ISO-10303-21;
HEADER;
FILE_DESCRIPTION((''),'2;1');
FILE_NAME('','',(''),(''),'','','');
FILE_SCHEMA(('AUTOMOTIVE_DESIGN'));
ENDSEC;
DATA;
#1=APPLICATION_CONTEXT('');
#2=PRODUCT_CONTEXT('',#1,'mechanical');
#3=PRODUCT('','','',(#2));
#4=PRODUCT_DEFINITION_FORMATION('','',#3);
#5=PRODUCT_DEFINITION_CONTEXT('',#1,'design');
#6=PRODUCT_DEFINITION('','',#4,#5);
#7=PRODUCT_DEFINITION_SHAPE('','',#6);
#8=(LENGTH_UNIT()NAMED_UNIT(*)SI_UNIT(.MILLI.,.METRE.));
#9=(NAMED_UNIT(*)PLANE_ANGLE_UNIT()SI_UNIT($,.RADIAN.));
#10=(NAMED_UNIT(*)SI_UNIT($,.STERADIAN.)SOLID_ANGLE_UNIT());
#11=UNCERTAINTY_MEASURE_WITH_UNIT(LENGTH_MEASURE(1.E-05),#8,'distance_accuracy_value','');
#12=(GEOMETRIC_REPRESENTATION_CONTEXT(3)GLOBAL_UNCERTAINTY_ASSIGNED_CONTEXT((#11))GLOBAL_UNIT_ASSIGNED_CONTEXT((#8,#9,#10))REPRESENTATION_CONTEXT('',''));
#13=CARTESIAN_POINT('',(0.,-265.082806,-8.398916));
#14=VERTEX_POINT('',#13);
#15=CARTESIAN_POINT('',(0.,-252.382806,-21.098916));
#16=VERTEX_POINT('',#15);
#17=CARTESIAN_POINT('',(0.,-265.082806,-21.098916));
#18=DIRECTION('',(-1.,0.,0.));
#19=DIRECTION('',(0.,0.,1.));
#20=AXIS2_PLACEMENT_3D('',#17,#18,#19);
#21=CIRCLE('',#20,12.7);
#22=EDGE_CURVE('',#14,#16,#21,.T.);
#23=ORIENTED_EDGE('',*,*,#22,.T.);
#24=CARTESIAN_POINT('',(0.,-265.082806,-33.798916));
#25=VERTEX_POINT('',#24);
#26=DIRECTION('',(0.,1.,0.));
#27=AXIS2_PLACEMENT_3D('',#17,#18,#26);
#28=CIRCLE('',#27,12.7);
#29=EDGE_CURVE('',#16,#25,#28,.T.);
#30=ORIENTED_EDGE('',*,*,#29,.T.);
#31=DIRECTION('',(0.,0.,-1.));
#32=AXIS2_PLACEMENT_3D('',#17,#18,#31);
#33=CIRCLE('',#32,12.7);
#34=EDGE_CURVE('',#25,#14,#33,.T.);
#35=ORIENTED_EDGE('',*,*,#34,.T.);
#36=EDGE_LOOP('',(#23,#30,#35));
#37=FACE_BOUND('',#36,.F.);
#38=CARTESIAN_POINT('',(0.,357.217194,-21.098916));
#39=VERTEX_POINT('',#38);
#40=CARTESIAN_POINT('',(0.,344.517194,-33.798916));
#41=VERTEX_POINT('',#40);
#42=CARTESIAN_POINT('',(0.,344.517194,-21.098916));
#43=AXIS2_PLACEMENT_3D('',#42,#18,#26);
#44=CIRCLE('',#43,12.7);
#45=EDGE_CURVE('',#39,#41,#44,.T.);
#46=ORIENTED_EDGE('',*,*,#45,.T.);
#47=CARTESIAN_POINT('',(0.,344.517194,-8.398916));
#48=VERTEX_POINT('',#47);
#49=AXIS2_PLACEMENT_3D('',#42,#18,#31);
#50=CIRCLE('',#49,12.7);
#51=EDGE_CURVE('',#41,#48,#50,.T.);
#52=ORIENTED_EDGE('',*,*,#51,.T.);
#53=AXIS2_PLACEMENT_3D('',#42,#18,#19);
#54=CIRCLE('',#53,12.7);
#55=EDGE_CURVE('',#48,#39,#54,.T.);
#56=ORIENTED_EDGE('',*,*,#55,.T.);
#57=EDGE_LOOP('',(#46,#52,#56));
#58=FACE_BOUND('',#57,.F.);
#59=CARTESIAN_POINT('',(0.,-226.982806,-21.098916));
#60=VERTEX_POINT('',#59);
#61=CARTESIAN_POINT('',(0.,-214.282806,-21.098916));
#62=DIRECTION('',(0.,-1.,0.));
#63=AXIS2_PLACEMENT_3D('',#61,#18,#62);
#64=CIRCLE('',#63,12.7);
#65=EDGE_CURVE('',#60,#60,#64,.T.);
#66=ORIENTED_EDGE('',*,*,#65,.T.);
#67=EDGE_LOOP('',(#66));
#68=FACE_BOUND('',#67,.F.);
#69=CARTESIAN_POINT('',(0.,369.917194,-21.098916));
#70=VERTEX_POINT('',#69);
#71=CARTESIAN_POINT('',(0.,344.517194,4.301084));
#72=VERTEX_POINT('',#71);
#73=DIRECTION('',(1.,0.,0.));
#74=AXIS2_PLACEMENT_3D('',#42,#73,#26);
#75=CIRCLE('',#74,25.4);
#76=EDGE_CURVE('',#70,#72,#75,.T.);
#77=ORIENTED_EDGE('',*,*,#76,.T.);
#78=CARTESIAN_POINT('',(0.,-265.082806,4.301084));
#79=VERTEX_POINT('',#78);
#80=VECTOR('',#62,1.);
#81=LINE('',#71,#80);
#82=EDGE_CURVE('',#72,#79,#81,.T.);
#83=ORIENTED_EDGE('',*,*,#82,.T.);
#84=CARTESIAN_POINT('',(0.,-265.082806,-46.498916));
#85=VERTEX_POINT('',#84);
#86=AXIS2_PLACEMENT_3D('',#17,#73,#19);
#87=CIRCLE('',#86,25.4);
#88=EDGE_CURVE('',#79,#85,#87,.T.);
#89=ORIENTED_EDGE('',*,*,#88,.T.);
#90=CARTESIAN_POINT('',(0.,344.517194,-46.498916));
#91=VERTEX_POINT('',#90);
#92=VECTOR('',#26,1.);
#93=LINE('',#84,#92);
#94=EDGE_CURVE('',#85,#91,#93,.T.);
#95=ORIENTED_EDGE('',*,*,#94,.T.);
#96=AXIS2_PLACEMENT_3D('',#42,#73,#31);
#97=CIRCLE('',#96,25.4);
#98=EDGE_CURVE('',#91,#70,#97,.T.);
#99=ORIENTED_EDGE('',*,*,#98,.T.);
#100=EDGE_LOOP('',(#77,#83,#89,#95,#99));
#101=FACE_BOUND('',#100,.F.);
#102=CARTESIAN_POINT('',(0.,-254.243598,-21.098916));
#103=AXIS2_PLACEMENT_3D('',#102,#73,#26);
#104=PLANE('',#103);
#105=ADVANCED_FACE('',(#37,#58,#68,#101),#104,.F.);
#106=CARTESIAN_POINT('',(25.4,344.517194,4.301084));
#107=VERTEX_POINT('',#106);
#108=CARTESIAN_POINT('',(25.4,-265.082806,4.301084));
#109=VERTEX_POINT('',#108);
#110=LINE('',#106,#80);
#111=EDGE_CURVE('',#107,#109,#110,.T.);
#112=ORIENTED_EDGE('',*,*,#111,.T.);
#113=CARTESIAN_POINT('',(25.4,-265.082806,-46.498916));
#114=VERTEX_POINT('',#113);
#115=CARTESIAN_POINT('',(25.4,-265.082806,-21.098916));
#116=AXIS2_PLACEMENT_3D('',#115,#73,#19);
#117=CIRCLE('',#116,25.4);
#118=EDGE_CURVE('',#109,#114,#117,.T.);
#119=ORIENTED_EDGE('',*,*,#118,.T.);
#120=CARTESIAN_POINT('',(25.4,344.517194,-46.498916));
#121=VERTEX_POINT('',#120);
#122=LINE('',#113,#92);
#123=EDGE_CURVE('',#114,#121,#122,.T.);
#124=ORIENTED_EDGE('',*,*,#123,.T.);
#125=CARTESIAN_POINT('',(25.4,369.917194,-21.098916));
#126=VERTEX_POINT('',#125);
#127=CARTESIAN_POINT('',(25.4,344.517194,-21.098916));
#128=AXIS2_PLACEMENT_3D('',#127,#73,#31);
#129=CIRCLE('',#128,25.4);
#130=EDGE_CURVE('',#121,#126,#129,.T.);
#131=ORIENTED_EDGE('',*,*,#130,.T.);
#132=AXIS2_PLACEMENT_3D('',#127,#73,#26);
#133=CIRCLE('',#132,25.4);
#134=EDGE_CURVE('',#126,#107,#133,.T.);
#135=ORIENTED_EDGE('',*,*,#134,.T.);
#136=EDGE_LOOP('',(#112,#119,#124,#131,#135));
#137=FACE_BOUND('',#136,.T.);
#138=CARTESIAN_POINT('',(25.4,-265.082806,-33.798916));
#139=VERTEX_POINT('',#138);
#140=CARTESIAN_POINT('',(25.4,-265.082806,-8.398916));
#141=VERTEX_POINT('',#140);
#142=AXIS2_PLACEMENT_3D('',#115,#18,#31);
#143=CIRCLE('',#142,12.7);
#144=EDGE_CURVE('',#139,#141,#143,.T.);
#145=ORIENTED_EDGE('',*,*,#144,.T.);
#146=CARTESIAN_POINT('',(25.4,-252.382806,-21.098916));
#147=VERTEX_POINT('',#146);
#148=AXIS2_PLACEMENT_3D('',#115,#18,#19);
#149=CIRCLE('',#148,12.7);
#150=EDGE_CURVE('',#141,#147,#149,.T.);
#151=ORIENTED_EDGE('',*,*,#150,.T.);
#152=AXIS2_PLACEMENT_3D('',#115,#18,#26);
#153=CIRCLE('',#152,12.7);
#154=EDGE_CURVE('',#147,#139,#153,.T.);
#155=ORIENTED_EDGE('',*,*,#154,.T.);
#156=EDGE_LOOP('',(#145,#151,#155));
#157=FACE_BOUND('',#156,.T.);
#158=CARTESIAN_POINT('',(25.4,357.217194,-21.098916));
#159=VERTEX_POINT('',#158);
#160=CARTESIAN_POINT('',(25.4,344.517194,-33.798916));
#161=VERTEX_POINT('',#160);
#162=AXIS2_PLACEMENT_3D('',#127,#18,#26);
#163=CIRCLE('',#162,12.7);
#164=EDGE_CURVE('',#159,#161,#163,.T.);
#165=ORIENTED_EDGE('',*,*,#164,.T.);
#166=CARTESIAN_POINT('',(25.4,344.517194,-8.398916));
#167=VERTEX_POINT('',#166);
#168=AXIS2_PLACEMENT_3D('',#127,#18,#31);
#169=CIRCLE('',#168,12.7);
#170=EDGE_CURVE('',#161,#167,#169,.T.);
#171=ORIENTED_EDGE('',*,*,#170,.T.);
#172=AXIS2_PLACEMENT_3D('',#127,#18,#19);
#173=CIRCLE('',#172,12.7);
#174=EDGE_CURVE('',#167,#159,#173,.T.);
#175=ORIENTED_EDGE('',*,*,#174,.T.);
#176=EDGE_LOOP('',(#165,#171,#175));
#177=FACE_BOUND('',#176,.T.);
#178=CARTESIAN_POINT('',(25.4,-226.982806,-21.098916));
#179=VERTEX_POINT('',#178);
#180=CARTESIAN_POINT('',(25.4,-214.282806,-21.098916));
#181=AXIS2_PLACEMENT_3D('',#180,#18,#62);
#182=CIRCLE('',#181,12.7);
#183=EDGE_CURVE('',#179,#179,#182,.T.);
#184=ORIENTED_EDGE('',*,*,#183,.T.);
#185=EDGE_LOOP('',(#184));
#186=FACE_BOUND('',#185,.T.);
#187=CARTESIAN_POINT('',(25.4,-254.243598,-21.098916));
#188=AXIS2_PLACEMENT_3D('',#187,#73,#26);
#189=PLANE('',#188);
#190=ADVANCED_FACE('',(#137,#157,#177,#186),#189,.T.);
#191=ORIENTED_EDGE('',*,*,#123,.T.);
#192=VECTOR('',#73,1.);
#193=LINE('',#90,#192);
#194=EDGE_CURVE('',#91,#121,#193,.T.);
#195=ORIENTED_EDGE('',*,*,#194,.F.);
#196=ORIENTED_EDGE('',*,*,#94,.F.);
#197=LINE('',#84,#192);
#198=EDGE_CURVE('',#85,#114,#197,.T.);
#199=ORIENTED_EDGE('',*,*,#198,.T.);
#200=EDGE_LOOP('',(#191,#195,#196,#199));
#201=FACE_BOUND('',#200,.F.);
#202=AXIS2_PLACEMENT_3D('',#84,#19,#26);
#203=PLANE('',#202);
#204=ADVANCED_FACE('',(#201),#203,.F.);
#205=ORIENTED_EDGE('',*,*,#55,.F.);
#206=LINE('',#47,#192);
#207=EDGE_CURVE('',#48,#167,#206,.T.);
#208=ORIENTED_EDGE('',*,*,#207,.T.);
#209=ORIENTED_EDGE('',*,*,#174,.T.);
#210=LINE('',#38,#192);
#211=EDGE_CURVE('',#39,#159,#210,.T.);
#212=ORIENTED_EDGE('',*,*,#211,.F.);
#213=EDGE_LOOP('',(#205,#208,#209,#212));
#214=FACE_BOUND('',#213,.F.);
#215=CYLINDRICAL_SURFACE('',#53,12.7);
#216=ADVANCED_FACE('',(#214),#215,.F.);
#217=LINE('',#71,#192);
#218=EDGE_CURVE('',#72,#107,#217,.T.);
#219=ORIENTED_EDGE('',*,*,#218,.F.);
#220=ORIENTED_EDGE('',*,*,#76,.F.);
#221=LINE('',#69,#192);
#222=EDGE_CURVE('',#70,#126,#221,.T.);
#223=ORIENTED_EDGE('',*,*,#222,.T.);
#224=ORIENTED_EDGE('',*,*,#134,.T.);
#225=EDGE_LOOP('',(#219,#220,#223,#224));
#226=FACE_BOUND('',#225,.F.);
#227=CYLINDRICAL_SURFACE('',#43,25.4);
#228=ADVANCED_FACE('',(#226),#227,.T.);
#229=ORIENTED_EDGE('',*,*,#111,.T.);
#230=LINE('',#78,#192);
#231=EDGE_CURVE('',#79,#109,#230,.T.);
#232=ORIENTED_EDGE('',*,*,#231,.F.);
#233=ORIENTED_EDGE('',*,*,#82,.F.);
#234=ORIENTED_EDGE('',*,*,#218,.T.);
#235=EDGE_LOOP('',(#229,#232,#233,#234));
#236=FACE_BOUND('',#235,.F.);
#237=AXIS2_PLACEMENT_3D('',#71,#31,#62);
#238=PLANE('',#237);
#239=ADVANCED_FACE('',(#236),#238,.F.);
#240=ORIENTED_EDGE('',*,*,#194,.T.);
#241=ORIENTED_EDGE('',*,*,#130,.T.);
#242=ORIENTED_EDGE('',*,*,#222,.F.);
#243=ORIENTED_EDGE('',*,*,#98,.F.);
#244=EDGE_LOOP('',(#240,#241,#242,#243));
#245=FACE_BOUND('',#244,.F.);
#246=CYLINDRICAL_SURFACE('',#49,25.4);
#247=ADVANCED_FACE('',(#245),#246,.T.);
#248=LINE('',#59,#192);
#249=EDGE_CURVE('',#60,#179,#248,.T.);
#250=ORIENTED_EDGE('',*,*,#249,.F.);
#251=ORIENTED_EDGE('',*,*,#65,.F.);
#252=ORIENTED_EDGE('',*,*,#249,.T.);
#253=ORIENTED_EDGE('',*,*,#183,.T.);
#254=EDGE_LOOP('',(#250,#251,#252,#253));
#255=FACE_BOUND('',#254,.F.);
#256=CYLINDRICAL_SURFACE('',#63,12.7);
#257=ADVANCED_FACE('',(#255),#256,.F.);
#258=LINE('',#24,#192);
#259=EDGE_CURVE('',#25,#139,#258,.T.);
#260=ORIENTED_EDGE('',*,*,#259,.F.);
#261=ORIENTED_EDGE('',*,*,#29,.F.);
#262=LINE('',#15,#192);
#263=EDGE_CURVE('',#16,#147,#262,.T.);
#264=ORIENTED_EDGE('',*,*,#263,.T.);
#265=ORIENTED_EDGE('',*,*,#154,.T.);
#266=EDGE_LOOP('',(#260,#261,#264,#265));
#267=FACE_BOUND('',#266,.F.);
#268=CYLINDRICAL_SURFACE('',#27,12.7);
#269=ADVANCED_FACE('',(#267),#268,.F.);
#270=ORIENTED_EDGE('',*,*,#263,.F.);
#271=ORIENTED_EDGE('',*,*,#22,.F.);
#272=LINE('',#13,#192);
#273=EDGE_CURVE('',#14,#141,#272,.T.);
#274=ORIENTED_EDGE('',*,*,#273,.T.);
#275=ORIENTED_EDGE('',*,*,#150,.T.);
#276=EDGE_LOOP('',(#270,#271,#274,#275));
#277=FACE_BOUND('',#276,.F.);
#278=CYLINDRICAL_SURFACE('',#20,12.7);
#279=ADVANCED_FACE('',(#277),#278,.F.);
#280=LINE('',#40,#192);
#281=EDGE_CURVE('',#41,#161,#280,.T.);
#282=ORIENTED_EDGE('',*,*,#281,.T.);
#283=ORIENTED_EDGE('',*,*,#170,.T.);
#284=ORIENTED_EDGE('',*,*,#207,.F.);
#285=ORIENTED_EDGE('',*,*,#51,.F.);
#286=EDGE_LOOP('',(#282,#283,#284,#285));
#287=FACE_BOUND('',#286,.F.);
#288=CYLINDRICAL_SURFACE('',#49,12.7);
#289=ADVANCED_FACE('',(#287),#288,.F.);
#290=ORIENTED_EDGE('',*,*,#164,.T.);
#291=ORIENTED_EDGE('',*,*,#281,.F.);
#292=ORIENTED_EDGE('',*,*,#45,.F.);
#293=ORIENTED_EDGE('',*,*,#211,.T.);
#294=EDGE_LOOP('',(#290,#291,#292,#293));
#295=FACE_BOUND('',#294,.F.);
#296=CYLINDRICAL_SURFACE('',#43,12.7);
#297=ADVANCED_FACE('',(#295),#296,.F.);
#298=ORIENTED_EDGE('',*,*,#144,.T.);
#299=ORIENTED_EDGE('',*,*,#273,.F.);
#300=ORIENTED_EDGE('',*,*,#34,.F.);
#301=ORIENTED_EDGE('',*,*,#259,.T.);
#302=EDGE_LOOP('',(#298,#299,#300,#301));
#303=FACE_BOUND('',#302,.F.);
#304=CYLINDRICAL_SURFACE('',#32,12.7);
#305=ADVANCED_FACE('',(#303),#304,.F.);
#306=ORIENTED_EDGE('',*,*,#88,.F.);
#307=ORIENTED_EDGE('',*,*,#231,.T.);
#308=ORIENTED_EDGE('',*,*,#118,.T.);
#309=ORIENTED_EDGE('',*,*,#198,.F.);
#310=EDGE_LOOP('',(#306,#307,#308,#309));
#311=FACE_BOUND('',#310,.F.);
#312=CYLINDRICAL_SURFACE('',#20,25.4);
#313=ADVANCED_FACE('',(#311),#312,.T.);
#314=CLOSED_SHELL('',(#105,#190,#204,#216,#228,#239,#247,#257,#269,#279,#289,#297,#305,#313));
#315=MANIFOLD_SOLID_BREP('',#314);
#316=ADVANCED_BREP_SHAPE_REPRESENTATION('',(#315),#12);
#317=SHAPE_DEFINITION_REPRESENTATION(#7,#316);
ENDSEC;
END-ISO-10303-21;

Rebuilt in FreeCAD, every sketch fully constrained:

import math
import FreeCAD as App
import Part
import Sketcher
Q = App.Units.Quantity

doc = App.newDocument("Part")
body = doc.addObject("PartDesign::Body", "Body")

sketch1 = body.newObject("Sketcher::SketchObject", "Sketch")
sketch1.AttachmentSupport = (doc.getObject("YZ_Plane"), [""])
sketch1.MapMode = "FlatFace"
sketch1.addGeometry([
    Part.LineSegment(App.Vector(345, 4, 0), App.Vector(-265, 4, 0)),
    Part.ArcOfCircle(Part.Circle(App.Vector(-265, -21, 0), App.Vector(0, 0, 1), 25), math.radians(90), math.radians(270)),
    Part.LineSegment(App.Vector(-265, -46, 0), App.Vector(345, -46, 0)),
    Part.ArcOfCircle(Part.Circle(App.Vector(345, -21, 0), App.Vector(0, 0, 1), 25), math.radians(-90), math.radians(0)),
    Part.ArcOfCircle(Part.Circle(App.Vector(345, -21, 0), App.Vector(0, 0, 1), 25), math.radians(0), math.radians(90)),
    Part.ArcOfCircle(Part.Circle(App.Vector(-265, -21, 0), App.Vector(0, 0, 1), 13), math.radians(0), math.radians(90)),
    Part.ArcOfCircle(Part.Circle(App.Vector(-265, -21, 0), App.Vector(0, 0, 1), 13), math.radians(-90), math.radians(0)),
    Part.ArcOfCircle(Part.Circle(App.Vector(-265, -21, 0), App.Vector(0, 0, 1), 13), math.radians(90), math.radians(270)),
    Part.Circle(App.Vector(-214, -21, 0), App.Vector(0, 0, 1), 13),
    Part.ArcOfCircle(Part.Circle(App.Vector(345, -21, 0), App.Vector(0, 0, 1), 13), math.radians(90), math.radians(270)),
    Part.ArcOfCircle(Part.Circle(App.Vector(345, -21, 0), App.Vector(0, 0, 1), 13), math.radians(0), math.radians(90)),
    Part.ArcOfCircle(Part.Circle(App.Vector(345, -21, 0), App.Vector(0, 0, 1), 13), math.radians(-90), math.radians(0)),
], False)
sketch1.addConstraint([
    Sketcher.Constraint("Tangent", 0, 2, 1, 1),
    Sketcher.Constraint("Tangent", 1, 2, 2, 1),
    Sketcher.Constraint("Tangent", 2, 2, 3, 1),
    Sketcher.Constraint("Tangent", 3, 2, 4, 1),
    Sketcher.Constraint("Tangent", 4, 2, 0, 1),
    Sketcher.Constraint("Tangent", 5, 1, 6, 2),
    Sketcher.Constraint("Tangent", 6, 1, 7, 2),
    Sketcher.Constraint("Tangent", 7, 1, 5, 2),
    Sketcher.Constraint("Tangent", 9, 1, 10, 2),
    Sketcher.Constraint("Tangent", 10, 1, 11, 2),
    Sketcher.Constraint("Tangent", 11, 1, 9, 2),
    Sketcher.Constraint("Horizontal", 0),
    Sketcher.Constraint("Horizontal", 2),
    Sketcher.Constraint("Coincident", 5, 3, 1, 3),
    Sketcher.Constraint("Coincident", 9, 3, 3, 3),
    Sketcher.Constraint("Equal", 1, 3),
    Sketcher.Constraint("Equal", 7, 8),
    Sketcher.Constraint("Equal", 8, 9),
    Sketcher.Constraint("Horizontal", 7, 3, 8, 3),
    Sketcher.Constraint("Horizontal", 11, 3, 3, 2),
    Sketcher.Constraint("Horizontal", 3, 2, 5, 1),
    Sketcher.Constraint("Horizontal", 5, 1, 10, 1),
    Sketcher.Constraint("Vertical", 1, 2, 6, 1),
    Sketcher.Constraint("Vertical", 6, 1, 7, 1),
    Sketcher.Constraint("Vertical", 4, 2, 9, 1),
    Sketcher.Constraint("Vertical", 9, 1, 11, 1),
    Sketcher.Constraint("Diameter", 8, Q("1 in")),
    Sketcher.Constraint("Radius", 1, Q("1 in")),
    Sketcher.Constraint("DistanceX", 0, 2, 0, 1, Q("24 in")),
    Sketcher.Constraint("DistanceX", 1, 3, 8, 3, Q("2 in")),
    Sketcher.Constraint("DistanceX", 1, 3, -1, 1, 265.082806),
    Sketcher.Constraint("DistanceY", 1, 3, -1, 1, 21.098916),
])
pad1 = body.newObject("PartDesign::Pad", "Pad")
pad1.Profile = sketch1
pad1.Length = Q("1 in")

doc.recompute()
